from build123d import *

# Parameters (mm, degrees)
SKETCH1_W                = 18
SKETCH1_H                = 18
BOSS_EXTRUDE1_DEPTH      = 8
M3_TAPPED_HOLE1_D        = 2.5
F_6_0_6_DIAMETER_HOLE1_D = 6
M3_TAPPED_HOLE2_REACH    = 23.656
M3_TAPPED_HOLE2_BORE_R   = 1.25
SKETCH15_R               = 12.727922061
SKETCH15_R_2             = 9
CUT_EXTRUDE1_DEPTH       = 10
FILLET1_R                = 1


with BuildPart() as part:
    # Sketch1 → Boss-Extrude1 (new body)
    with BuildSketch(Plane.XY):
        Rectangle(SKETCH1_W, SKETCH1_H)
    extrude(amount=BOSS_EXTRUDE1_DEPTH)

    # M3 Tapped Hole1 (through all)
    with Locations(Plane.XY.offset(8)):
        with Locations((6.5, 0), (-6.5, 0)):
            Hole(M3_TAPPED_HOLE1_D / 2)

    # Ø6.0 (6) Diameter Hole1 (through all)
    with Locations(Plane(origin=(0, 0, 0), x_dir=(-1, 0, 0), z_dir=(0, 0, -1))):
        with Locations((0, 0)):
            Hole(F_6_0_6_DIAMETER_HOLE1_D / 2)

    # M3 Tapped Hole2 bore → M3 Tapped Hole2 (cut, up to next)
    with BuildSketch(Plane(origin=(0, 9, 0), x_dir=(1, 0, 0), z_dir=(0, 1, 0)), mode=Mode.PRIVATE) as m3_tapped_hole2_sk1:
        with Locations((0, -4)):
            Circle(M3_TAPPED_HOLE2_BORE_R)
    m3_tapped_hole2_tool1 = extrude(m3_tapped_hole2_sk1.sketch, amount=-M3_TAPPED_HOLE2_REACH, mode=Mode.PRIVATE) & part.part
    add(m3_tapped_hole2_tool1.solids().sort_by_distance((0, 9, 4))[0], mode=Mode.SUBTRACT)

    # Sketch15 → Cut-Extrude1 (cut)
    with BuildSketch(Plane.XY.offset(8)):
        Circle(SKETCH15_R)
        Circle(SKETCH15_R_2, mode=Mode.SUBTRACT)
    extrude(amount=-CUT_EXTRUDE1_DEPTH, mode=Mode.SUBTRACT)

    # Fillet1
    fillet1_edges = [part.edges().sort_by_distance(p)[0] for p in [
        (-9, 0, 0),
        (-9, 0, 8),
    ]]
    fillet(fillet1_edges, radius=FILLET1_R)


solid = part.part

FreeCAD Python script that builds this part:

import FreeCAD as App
import Part
import Sketcher
Q = App.Units.Quantity


def edges_at(feature, points):
    """Names of the edges that pass closest to the given points."""
    edges = feature.Shape.Edges
    near = lambda p: min(range(len(edges)), key=lambda i: edges[i].distToShape(Part.Vertex(*p))[0])
    return sorted({f"Edge{near(p) + 1}" for p in points})


def add_polygon(sketch, points):
    """Adds a closed chain of lines whose ends are joined by coincident constraints."""
    first, n = sketch.GeometryCount, len(points)
    for a, b in zip(points, points[1:] + points[:1]):
        sketch.addGeometry(Part.LineSegment(App.Vector(*a, 0), App.Vector(*b, 0)), False)
    for i in range(n):
        sketch.addConstraint(Sketcher.Constraint("Coincident", first + i, 2, first + (i + 1) % n, 1))

doc = App.newDocument("Part")
body = doc.addObject("PartDesign::Body", "Body")

sketch1 = doc.addObject("Sketcher::SketchObject", "Sketch")
body.addObject(sketch1)
sketch1.AttachmentSupport = (doc.XY_Plane, [""])
sketch1.MapMode = "FlatFace"
add_polygon(sketch1, [(-9, 9), (-9, -9), (9, -9), (9, 9)])
sketch1.addConstraint(Sketcher.Constraint("Vertical", 0))
sketch1.addConstraint(Sketcher.Constraint("Horizontal", 1))
sketch1.addConstraint(Sketcher.Constraint("Vertical", 2))
sketch1.addConstraint(Sketcher.Constraint("Horizontal", 3))
sketch1.addConstraint(Sketcher.Constraint("Symmetric", 0, 2, 2, 2, -1, 1))
sketch1.addConstraint(Sketcher.Constraint("Equal", 3, 0))
sketch1.addConstraint(Sketcher.Constraint("DistanceX", 1, 1, 1, 2, Q("18 mm")))
pad1 = doc.addObject("PartDesign::Pad", "Pad")
body.addObject(pad1)
pad1.Profile = sketch1
pad1.Length = 8

sketch2 = doc.addObject("Sketcher::SketchObject", "Sketch001")
body.addObject(sketch2)
sketch2.AttachmentSupport = (doc.XY_Plane, [""])
sketch2.MapMode = "FlatFace"
sketch2.AttachmentOffset = App.Placement(App.Vector(0, 0, 8), App.Rotation())
sketch2.addGeometry(Part.Circle(App.Vector(6.5, 0, 0), App.Vector(0, 0, 1), 1.2), False)
sketch2.addGeometry(Part.Circle(App.Vector(-6.5, 0, 0), App.Vector(0, 0, 1), 1.2), False)
sketch2.addConstraint(Sketcher.Constraint("Equal", 0, 1))
sketch2.addConstraint(Sketcher.Constraint("Symmetric", 0, 3, 1, 3, -1, 1))
sketch2.addConstraint(Sketcher.Constraint("PointOnObject", 0, 3, -1))
sketch2.addConstraint(Sketcher.Constraint("Diameter", 0, Q("2.5 mm")))
sketch2.addConstraint(Sketcher.Constraint("DistanceX", 1, 3, 0, 3, Q("13 mm")))
doc.recompute()
hole = doc.addObject("PartDesign::Hole", "Hole")
body.addObject(hole)
hole.Profile = sketch2
hole.ThreadType = "None"
hole.Diameter = 2.5
hole.DepthType = "ThroughAll"

sketch3 = doc.addObject("Sketcher::SketchObject", "Sketch002")
body.addObject(sketch3)
sketch3.AttachmentSupport = (doc.XY_Plane, [""])
sketch3.MapMode = "FlatFace"
sketch3.addGeometry(Part.Circle(App.Vector(0, 0, 0), App.Vector(0, 0, 1), 3), False)
sketch3.addConstraint(Sketcher.Constraint("Coincident", 0, 3, -1, 1))
sketch3.addConstraint(Sketcher.Constraint("Diameter", 0, Q("6 mm")))
doc.recompute()
hole2 = doc.addObject("PartDesign::Hole", "Hole001")
body.addObject(hole2)
hole2.Profile = sketch3
hole2.ThreadType = "None"
hole2.Diameter = 6
hole2.DepthType = "ThroughAll"
hole2.Reversed = True

sketch4 = doc.addObject("Sketcher::SketchObject", "Sketch003")
body.addObject(sketch4)
sketch4.AttachmentSupport = (doc.XZ_Plane, [""])
sketch4.MapMode = "FlatFace"
sketch4.AttachmentOffset = App.Placement(App.Vector(0, 0, -9), App.Rotation())
sketch4.addGeometry(Part.Circle(App.Vector(0, 4, 0), App.Vector(0, 0, 1), 1.2), False)
sketch4.addConstraint(Sketcher.Constraint("PointOnObject", 0, 3, -2))
sketch4.addConstraint(Sketcher.Constraint("Diameter", 0, Q("2.5 mm")))
sketch4.addConstraint(Sketcher.Constraint("DistanceY", -1, 1, 0, 3, Q("4 mm")))
pocket1 = doc.addObject("PartDesign::Pocket", "Pocket")
body.addObject(pocket1)
pocket1.Profile = sketch4
pocket1.Type = "UpToFirst"
pocket1.Reversed = True

sketch5 = doc.addObject("Sketcher::SketchObject", "Sketch004")
body.addObject(sketch5)
sketch5.AttachmentSupport = (doc.XY_Plane, [""])
sketch5.MapMode = "FlatFace"
sketch5.AttachmentOffset = App.Placement(App.Vector(0, 0, 8), App.Rotation())
sketch5.addGeometry(Part.Circle(App.Vector(0, 0, 0), App.Vector(0, 0, 1), 13), False)
sketch5.addGeometry(Part.Circle(App.Vector(0, 0, 0), App.Vector(0, 0, 1), 9), False)
sketch5.addConstraint(Sketcher.Constraint("Coincident", 0, 3, -1, 1))
sketch5.addConstraint(Sketcher.Constraint("Coincident", 1, 3, -1, 1))
sketch5.addConstraint(Sketcher.Constraint("Diameter", 1, Q("18 mm")))
sketch5.addConstraint(Sketcher.Constraint("Diameter", 0, Q("25.455844 mm")))
pocket2 = doc.addObject("PartDesign::Pocket", "Pocket001")
body.addObject(pocket2)
pocket2.Profile = sketch5
pocket2.Length = 10
doc.recompute()

fillet = doc.addObject("PartDesign::Fillet", "Fillet")
body.addObject(fillet)
fillet.Base = (pocket2, edges_at(pocket2, [(-9, 0, 0), (-9, 0, 8)]))
fillet.Radius = 1

doc.recompute()
